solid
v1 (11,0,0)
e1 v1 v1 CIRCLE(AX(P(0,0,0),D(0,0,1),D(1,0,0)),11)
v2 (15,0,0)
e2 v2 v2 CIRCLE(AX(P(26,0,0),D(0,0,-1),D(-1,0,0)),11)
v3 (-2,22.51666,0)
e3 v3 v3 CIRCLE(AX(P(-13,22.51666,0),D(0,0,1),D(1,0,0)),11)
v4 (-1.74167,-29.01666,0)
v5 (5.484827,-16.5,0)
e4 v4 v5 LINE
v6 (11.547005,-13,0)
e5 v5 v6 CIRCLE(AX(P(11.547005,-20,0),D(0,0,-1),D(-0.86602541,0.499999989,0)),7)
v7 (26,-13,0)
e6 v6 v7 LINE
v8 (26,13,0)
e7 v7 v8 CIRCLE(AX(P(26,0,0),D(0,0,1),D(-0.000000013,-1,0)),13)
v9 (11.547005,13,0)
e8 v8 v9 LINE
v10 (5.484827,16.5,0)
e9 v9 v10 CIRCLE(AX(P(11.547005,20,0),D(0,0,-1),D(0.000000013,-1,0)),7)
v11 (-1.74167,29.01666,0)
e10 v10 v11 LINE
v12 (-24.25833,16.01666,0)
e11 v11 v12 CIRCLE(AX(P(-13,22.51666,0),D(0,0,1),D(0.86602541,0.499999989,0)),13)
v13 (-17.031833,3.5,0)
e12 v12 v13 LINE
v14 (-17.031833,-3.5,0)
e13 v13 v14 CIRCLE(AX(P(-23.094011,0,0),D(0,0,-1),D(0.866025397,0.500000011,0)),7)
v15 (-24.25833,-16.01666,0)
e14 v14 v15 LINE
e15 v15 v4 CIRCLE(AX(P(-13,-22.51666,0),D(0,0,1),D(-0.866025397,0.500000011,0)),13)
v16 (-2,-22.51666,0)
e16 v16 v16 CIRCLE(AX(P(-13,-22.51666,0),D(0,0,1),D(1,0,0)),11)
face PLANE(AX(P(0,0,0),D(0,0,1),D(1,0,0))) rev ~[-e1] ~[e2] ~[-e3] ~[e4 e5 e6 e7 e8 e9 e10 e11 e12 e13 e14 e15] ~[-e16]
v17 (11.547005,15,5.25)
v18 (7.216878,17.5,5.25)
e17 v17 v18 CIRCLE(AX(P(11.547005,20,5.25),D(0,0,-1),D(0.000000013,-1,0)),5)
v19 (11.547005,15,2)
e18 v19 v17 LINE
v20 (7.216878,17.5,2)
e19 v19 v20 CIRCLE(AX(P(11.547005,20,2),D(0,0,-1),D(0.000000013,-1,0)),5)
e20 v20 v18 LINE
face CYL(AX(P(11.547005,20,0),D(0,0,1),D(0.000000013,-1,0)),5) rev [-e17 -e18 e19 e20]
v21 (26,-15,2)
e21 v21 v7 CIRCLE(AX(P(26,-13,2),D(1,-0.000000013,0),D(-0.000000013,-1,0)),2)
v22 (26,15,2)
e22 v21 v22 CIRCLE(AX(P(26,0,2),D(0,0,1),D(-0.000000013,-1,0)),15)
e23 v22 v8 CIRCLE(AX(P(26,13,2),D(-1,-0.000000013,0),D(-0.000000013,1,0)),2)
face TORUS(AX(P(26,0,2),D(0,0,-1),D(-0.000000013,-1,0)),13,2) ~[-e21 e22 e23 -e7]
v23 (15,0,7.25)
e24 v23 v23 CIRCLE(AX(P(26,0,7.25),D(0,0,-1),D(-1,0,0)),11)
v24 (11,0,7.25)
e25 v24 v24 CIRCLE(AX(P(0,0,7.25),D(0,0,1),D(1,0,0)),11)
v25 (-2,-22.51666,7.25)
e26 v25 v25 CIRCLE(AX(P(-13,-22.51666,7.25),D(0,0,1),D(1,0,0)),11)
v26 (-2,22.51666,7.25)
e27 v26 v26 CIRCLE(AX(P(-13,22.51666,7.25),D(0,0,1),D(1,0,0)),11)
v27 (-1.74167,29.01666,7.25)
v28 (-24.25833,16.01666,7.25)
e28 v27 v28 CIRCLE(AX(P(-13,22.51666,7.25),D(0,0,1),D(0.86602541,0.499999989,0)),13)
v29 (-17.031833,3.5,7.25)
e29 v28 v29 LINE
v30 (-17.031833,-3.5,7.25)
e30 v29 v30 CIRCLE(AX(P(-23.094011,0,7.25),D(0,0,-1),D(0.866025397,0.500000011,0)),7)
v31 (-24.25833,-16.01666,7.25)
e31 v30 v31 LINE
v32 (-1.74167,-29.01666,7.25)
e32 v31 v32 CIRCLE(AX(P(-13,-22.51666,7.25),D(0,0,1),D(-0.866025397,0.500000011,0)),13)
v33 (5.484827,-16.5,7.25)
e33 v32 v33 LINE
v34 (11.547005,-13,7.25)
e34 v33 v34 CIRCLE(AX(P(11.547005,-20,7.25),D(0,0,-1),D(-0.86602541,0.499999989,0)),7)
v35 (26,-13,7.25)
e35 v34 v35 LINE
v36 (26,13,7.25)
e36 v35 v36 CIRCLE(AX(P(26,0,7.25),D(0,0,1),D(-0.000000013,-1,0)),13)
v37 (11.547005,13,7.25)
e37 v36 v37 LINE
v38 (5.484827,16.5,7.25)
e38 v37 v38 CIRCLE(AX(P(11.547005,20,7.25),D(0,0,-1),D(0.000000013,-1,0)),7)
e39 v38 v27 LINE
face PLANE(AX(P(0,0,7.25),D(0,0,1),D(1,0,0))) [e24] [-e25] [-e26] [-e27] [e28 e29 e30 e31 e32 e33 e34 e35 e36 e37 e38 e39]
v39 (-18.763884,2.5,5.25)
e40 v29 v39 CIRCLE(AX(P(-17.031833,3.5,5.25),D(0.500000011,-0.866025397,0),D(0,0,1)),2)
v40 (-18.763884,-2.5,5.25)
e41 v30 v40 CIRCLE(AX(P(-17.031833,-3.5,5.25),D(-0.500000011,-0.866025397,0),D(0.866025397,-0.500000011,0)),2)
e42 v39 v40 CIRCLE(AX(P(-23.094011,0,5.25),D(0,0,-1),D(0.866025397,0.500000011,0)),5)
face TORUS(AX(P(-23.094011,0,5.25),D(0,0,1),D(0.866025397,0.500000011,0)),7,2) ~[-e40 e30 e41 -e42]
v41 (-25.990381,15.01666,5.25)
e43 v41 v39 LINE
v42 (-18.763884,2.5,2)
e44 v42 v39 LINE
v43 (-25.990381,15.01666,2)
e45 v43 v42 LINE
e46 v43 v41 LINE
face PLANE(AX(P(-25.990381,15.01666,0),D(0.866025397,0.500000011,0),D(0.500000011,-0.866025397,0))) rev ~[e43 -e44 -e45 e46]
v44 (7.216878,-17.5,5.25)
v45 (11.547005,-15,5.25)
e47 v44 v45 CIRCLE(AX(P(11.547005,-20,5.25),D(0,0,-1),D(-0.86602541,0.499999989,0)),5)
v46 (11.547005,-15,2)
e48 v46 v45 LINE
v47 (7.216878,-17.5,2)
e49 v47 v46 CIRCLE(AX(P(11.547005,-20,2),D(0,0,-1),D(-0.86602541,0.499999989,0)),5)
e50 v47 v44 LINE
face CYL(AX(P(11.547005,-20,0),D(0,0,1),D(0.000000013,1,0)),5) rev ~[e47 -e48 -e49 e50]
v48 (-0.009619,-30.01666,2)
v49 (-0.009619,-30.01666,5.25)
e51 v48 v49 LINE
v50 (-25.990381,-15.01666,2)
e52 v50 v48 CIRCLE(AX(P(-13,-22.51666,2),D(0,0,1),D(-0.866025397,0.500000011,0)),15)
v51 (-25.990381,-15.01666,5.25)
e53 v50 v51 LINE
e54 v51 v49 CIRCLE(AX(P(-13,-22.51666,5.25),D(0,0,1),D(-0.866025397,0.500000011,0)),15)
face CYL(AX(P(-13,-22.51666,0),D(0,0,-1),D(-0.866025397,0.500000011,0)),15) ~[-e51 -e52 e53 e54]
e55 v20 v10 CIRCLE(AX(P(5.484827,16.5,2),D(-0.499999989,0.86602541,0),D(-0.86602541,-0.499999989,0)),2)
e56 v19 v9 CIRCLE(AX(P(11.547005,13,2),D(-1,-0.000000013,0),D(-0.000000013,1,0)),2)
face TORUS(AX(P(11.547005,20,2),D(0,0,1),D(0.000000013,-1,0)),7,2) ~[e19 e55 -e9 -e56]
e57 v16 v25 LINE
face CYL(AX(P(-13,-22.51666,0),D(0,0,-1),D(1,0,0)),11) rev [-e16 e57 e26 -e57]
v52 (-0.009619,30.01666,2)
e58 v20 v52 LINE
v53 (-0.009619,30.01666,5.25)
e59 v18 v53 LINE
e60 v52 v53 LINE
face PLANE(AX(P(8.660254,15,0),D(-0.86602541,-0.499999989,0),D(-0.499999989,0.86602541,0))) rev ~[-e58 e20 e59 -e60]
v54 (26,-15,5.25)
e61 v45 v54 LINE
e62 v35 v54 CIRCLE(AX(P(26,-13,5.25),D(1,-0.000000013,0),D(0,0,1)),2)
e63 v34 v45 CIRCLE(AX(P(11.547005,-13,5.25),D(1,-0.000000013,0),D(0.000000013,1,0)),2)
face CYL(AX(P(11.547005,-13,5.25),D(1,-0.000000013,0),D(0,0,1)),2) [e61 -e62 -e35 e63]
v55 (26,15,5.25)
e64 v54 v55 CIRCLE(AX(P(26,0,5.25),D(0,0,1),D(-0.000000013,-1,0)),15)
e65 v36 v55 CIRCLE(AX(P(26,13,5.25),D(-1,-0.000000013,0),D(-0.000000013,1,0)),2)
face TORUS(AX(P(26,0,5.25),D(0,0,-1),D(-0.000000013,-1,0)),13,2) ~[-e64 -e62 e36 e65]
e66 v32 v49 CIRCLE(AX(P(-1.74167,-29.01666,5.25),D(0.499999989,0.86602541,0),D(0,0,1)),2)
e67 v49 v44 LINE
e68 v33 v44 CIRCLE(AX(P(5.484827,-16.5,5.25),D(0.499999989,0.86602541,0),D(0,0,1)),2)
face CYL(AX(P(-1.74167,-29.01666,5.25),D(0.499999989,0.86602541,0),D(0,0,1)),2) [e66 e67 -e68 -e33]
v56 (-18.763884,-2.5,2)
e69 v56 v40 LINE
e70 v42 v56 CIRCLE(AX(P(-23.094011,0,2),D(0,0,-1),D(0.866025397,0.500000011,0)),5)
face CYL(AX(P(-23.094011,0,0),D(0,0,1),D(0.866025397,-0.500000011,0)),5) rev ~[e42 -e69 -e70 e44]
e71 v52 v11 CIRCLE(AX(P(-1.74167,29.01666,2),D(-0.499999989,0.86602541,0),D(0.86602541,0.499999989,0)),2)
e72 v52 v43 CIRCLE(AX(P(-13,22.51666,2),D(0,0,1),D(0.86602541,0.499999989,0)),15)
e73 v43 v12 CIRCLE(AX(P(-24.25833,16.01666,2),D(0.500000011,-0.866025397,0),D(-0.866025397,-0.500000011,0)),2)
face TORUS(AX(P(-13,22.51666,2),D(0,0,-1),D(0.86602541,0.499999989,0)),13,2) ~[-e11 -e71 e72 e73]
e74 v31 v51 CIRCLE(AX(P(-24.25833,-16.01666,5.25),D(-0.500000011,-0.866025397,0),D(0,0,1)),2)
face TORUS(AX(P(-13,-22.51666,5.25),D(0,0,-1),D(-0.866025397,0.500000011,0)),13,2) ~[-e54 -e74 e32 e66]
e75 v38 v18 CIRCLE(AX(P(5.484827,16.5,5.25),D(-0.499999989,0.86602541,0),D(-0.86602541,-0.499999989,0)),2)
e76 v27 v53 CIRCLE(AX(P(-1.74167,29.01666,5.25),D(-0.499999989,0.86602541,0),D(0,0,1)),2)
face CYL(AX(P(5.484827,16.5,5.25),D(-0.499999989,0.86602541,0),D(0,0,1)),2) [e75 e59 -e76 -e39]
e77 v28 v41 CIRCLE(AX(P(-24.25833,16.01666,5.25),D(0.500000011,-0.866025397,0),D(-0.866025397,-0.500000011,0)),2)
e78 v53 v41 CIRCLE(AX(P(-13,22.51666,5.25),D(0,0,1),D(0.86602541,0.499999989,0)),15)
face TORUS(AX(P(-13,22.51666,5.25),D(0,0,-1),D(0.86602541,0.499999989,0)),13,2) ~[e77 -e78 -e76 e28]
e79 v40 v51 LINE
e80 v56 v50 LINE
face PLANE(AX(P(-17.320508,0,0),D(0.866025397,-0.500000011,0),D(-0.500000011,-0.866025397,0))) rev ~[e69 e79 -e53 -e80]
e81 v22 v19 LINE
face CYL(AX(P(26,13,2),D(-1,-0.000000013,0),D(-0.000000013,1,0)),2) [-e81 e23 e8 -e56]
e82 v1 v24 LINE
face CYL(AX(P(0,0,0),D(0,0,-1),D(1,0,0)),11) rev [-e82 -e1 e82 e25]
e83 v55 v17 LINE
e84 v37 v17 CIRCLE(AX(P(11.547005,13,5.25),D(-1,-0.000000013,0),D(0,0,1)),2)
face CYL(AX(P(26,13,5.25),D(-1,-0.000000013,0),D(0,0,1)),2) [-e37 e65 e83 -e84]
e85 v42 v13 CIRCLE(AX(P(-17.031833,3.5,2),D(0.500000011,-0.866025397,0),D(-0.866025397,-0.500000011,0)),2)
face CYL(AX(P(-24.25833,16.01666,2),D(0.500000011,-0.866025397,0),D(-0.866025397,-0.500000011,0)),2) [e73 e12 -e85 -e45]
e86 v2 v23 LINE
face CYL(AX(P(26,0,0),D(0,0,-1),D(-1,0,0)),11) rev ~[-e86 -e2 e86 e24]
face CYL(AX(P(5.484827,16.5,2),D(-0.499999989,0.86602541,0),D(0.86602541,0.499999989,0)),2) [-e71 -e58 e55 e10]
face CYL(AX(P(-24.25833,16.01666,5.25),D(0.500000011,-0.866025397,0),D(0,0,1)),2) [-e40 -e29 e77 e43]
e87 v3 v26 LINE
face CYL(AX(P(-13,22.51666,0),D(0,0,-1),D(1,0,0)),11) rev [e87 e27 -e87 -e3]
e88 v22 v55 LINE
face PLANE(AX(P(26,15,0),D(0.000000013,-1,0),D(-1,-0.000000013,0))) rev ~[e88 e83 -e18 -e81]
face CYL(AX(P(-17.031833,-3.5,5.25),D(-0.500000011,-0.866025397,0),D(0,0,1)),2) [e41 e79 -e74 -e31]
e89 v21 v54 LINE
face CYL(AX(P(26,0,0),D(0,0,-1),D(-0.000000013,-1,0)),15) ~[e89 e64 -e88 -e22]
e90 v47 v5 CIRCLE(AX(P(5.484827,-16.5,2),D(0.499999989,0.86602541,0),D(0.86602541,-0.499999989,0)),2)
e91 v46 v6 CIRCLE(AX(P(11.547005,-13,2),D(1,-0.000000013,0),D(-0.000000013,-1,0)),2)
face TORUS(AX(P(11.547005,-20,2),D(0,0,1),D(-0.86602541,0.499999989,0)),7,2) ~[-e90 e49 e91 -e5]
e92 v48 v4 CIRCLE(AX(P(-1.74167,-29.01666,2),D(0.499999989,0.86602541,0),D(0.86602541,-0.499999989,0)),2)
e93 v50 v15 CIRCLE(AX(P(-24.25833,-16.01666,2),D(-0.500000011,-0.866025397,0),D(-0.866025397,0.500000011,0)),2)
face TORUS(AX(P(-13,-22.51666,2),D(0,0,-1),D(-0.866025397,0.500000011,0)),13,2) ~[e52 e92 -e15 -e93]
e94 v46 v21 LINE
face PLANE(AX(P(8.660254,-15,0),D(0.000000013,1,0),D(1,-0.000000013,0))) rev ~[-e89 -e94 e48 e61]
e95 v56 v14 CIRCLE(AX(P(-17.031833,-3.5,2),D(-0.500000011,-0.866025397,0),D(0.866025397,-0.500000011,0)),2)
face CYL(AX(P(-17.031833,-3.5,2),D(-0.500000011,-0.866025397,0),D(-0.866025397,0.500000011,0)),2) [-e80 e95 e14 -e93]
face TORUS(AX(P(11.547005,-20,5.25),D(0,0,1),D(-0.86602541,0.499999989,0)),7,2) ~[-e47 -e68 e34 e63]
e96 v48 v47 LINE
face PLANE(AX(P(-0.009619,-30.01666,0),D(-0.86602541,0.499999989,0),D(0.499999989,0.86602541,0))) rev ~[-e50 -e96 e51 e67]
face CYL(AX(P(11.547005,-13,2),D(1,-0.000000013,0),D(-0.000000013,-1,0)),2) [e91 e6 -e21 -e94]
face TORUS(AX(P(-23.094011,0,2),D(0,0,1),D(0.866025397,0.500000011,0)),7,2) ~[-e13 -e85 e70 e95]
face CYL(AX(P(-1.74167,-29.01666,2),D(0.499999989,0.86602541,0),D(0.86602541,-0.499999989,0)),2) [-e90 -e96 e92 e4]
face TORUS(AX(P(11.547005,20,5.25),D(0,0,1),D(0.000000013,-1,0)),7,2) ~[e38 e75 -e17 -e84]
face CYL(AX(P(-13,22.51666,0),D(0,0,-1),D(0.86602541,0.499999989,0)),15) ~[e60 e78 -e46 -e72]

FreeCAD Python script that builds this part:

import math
import FreeCAD as App
import Part
import Sketcher
from FreeCAD import Vector


def edges_at(feature, points):
    """Names of the edges that pass closest to the given points."""
    edges = feature.Shape.Edges
    near = lambda p: min(range(len(edges)), key=lambda i: edges[i].distToShape(Part.Vertex(*p))[0])
    return sorted({f"Edge{near(p) + 1}" for p in points})

doc = App.newDocument("Part")
body = doc.addObject("PartDesign::Body", "Body")

# Sketch on XY plane
sketch1 = body.newObject("Sketcher::SketchObject", "Sketch")
sketch1.AttachmentSupport = (doc.getObject("XY_Plane"), [""])
sketch1.MapMode = "FlatFace"
sketch1.addGeometry([
    Part.LineSegment(Vector(9, -15, 0), Vector(26, -15, 0)),  # 0
    Part.ArcOfCircle(Part.Circle(Vector(26, 0, 0), Vector(0, 0, 1), 15), math.radians(-90), math.radians(90)),  # 1
    Part.LineSegment(Vector(26, 15, 0), Vector(9, 15, 0)),  # 2
    Part.LineSegment(Vector(9, 15, 0), Vector(0, 30, 0)),  # 3
    Part.ArcOfCircle(Part.Circle(Vector(-13, 23, 0), Vector(0, 0, 1), 15), math.radians(30), math.radians(210)),  # 4
    Part.LineSegment(Vector(-26, 15, 0), Vector(-17, 0, 0)),  # 5
    Part.LineSegment(Vector(-17, 0, 0), Vector(-26, -15, 0)),  # 6
    Part.ArcOfCircle(Part.Circle(Vector(-13, -23, 0), Vector(0, 0, 1), 15), math.radians(150), math.radians(330)),  # 7
    Part.LineSegment(Vector(0, -30, 0), Vector(9, -15, 0)),  # 8
    Part.Circle(Vector(-13, -23, 0), Vector(0, 0, 1), 11),  # 9
    Part.Circle(Vector(0, 0, 0), Vector(0, 0, 1), 11),  # 10
    Part.Circle(Vector(-13, 23, 0), Vector(0, 0, 1), 11),  # 11
    Part.Circle(Vector(26, 0, 0), Vector(0, 0, 1), 11),  # 12
], False)
sketch1.addConstraint([
    Sketcher.Constraint("Tangent", 0, 2, 1, 1),
    Sketcher.Constraint("Tangent", 1, 2, 2, 1),
    Sketcher.Constraint("Coincident", 2, 2, 3, 1),
    Sketcher.Constraint("Tangent", 3, 2, 4, 1),
    Sketcher.Constraint("Tangent", 4, 2, 5, 1),
    Sketcher.Constraint("Coincident", 5, 2, 6, 1),
    Sketcher.Constraint("Tangent", 6, 2, 7, 1),
    Sketcher.Constraint("Tangent", 7, 2, 8, 1),
    Sketcher.Constraint("Coincident", 8, 2, 0, 1),
    Sketcher.Constraint("Horizontal", 0),
    Sketcher.Constraint("Horizontal", 2),
    Sketcher.Constraint("Coincident", 10, 3, -1, 1),
    Sketcher.Constraint("Coincident", 9, 3, 7, 3),
    Sketcher.Constraint("Coincident", 11, 3, 4, 3),
    Sketcher.Constraint("Coincident", 12, 3, 1, 3),
    Sketcher.Constraint("Equal", 1, 4),
    Sketcher.Constraint("Equal", 4, 7),
    Sketcher.Constraint("Equal", 9, 10),
    Sketcher.Constraint("Equal", 10, 11),
    Sketcher.Constraint("Equal", 11, 12),
    Sketcher.Constraint("Symmetric", 4, 3, 7, 3, -1),
    Sketcher.Constraint("Symmetric", 2, 2, 8, 2, -1),
    Sketcher.Constraint("PointOnObject", 5, 2, -1),
    Sketcher.Constraint("Parallel", 3, 5),
    Sketcher.Constraint("Equal", 3, 5),
    Sketcher.Constraint("Diameter", 9, 22.0),
    Sketcher.Constraint("Radius", 1, 15.0),
    Sketcher.Constraint("DistanceX", -1, 1, 1, 3, 26.0),
    Sketcher.Constraint("DistanceX", 4, 3, -1, 1, 13.0),
    Sketcher.Constraint("DistanceX", 0, 1, 0, 2, 17.339746),
])
pad1 = body.newObject("PartDesign::Pad", "Pad")
pad1.Profile = sketch1
pad1.Length = 7.25
doc.recompute()

fillet = body.newObject("PartDesign::Fillet", "Fillet")
fillet.Base = (pad1, edges_at(pad1, [(8.66, 15, 3.625), (-17.321, 0, 3.625), (8.66, -15, 3.625)]))
fillet.Radius = 5
doc.recompute()

fillet2 = body.newObject("PartDesign::Fillet", "Fillet001")
fillet2.Base = (fillet, edges_at(fillet, [
    (3.604, -23.758, 7.25),
    (-20.5, -35.507, 7.25),
    (-22.377, -8.758, 7.25),
    (-18.094, 0, 7.25),
    (-22.377, 8.758, 7.25),
    (-20.5, 35.507, 7.25),
    (3.604, 23.758, 7.25),
    (18.774, 15, 7.25),
    (41, 0, 7.25),
    (18.774, -15, 7.25),
    (9.047, -15.67, 7.25),
    (9.047, 15.67, 7.25),
    (18.774, -15, 0),
    (3.604, -23.758, 0),
    (-22.377, -8.758, 0),
    (-20.5, -35.507, 0),
    (41, 0, 0),
    (18.774, 15, 0),
    (-20.5, 35.507, 0),
    (3.604, 23.758, 0),
    (-22.377, 8.758, 0),
    (-18.094, 0, 0),
    (9.047, 15.67, 0),
    (9.047, -15.67, 0),
]))
fillet2.Radius = 2

doc.recompute()
